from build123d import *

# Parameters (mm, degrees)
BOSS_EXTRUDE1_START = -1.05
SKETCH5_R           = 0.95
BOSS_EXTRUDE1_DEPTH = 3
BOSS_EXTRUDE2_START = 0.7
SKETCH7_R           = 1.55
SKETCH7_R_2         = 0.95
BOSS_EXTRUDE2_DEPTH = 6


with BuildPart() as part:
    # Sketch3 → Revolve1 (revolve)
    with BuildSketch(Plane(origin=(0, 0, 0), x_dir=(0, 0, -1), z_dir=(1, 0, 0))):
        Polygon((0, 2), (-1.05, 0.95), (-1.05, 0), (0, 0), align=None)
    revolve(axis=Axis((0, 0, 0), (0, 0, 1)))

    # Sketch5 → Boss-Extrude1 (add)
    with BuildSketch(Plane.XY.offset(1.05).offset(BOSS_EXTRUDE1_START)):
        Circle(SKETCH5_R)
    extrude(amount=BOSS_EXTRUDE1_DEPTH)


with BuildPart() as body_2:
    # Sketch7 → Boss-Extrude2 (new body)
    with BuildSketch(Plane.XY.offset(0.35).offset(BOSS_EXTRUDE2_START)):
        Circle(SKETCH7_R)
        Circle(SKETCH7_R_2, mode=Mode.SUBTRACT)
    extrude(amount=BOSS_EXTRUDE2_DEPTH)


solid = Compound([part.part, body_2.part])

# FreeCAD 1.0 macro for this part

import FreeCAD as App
import Part
import Sketcher

V = App.Vector
Q = App.Units.Quantity


def add_polygon(sketch, points):
    """Adds a closed chain of lines whose ends are joined by coincident constraints."""
    first, n = sketch.GeometryCount, len(points)
    for a, b in zip(points, points[1:] + points[:1]):
        sketch.addGeometry(Part.LineSegment(App.Vector(*a, 0), App.Vector(*b, 0)), False)
    for i in range(n):
        sketch.addConstraint(Sketcher.Constraint("Coincident", first + i, 2, first + (i + 1) % n, 1))

doc = App.newDocument("Part")
body = doc.addObject("PartDesign::Body", "Body")

# Sketch on YZ plane
sketch1 = body.newObject("Sketcher::SketchObject", "Sketch")
sketch1.AttachmentSupport = (doc.getObject("YZ_Plane"), [""])
sketch1.MapMode = "FlatFace"
add_polygon(sketch1, [(2, 0), (0.9, 1.1), (0, 1.1), (0, 0)])  # lines 0-3
sketch1.addConstraint([
    Sketcher.Constraint("Horizontal", 1),
    Sketcher.Constraint("Vertical", 2),
    Sketcher.Constraint("Horizontal", 3),
    Sketcher.Constraint("Coincident", 2, 2, -1, 1),
    Sketcher.Constraint("DistanceX", 3, 1, 3, 2, Q("2 mm")),
    Sketcher.Constraint("Angle", 0, Q("135 deg")),
    Sketcher.Constraint("DistanceX", 1, 2, 1, 1, Q("0.95 mm")),
])
revolution = body.newObject("PartDesign::Revolution", "Revolution")
revolution.Profile = sketch1
revolution.ReferenceAxis = (sketch1, ["V_Axis"])
revolution.Angle = 360

# Sketch on XY plane
sketch2 = body.newObject("Sketcher::SketchObject", "Sketch001")
sketch2.AttachmentSupport = (doc.getObject("XY_Plane"), [""])
sketch2.MapMode = "FlatFace"
sketch2.addGeometry(Part.Circle(V(0, 0, 0), V(0, 0, 1), 0.9), False)
sketch2.addConstraint([
    Sketcher.Constraint("Coincident", 0, 3, -1, 1),
    Sketcher.Constraint("Diameter", 0, Q("1.9 mm")),
])
pad1 = body.newObject("PartDesign::Pad", "Pad")
pad1.Profile = sketch2
pad1.Length = 3
body2 = doc.addObject("PartDesign::Body", "Body001")

# Sketch on XY plane
sketch3 = body2.newObject("Sketcher::SketchObject", "Sketch002")
sketch3.AttachmentSupport = (doc.getObject("XY_Plane001"), [""])
sketch3.MapMode = "FlatFace"
sketch3.AttachmentOffset = App.Placement(V(0, 0, 1.05), App.Rotation())
sketch3.addGeometry([
    Part.Circle(V(0, 0, 0), V(0, 0, 1), 1.6),
    Part.Circle(V(0, 0, 0), V(0, 0, 1), 0.9),
], False)
sketch3.addConstraint([
    Sketcher.Constraint("Coincident", 0, 3, -1, 1),
    Sketcher.Constraint("Coincident", 1, 3, -1, 1),
    Sketcher.Constraint("Diameter", 0, Q("3.1 mm")),
    Sketcher.Constraint("Diameter", 1, Q("1.9 mm")),
])
pad2 = body2.newObject("PartDesign::Pad", "Pad001")
pad2.Profile = sketch3
pad2.Length = 6

doc.recompute()
